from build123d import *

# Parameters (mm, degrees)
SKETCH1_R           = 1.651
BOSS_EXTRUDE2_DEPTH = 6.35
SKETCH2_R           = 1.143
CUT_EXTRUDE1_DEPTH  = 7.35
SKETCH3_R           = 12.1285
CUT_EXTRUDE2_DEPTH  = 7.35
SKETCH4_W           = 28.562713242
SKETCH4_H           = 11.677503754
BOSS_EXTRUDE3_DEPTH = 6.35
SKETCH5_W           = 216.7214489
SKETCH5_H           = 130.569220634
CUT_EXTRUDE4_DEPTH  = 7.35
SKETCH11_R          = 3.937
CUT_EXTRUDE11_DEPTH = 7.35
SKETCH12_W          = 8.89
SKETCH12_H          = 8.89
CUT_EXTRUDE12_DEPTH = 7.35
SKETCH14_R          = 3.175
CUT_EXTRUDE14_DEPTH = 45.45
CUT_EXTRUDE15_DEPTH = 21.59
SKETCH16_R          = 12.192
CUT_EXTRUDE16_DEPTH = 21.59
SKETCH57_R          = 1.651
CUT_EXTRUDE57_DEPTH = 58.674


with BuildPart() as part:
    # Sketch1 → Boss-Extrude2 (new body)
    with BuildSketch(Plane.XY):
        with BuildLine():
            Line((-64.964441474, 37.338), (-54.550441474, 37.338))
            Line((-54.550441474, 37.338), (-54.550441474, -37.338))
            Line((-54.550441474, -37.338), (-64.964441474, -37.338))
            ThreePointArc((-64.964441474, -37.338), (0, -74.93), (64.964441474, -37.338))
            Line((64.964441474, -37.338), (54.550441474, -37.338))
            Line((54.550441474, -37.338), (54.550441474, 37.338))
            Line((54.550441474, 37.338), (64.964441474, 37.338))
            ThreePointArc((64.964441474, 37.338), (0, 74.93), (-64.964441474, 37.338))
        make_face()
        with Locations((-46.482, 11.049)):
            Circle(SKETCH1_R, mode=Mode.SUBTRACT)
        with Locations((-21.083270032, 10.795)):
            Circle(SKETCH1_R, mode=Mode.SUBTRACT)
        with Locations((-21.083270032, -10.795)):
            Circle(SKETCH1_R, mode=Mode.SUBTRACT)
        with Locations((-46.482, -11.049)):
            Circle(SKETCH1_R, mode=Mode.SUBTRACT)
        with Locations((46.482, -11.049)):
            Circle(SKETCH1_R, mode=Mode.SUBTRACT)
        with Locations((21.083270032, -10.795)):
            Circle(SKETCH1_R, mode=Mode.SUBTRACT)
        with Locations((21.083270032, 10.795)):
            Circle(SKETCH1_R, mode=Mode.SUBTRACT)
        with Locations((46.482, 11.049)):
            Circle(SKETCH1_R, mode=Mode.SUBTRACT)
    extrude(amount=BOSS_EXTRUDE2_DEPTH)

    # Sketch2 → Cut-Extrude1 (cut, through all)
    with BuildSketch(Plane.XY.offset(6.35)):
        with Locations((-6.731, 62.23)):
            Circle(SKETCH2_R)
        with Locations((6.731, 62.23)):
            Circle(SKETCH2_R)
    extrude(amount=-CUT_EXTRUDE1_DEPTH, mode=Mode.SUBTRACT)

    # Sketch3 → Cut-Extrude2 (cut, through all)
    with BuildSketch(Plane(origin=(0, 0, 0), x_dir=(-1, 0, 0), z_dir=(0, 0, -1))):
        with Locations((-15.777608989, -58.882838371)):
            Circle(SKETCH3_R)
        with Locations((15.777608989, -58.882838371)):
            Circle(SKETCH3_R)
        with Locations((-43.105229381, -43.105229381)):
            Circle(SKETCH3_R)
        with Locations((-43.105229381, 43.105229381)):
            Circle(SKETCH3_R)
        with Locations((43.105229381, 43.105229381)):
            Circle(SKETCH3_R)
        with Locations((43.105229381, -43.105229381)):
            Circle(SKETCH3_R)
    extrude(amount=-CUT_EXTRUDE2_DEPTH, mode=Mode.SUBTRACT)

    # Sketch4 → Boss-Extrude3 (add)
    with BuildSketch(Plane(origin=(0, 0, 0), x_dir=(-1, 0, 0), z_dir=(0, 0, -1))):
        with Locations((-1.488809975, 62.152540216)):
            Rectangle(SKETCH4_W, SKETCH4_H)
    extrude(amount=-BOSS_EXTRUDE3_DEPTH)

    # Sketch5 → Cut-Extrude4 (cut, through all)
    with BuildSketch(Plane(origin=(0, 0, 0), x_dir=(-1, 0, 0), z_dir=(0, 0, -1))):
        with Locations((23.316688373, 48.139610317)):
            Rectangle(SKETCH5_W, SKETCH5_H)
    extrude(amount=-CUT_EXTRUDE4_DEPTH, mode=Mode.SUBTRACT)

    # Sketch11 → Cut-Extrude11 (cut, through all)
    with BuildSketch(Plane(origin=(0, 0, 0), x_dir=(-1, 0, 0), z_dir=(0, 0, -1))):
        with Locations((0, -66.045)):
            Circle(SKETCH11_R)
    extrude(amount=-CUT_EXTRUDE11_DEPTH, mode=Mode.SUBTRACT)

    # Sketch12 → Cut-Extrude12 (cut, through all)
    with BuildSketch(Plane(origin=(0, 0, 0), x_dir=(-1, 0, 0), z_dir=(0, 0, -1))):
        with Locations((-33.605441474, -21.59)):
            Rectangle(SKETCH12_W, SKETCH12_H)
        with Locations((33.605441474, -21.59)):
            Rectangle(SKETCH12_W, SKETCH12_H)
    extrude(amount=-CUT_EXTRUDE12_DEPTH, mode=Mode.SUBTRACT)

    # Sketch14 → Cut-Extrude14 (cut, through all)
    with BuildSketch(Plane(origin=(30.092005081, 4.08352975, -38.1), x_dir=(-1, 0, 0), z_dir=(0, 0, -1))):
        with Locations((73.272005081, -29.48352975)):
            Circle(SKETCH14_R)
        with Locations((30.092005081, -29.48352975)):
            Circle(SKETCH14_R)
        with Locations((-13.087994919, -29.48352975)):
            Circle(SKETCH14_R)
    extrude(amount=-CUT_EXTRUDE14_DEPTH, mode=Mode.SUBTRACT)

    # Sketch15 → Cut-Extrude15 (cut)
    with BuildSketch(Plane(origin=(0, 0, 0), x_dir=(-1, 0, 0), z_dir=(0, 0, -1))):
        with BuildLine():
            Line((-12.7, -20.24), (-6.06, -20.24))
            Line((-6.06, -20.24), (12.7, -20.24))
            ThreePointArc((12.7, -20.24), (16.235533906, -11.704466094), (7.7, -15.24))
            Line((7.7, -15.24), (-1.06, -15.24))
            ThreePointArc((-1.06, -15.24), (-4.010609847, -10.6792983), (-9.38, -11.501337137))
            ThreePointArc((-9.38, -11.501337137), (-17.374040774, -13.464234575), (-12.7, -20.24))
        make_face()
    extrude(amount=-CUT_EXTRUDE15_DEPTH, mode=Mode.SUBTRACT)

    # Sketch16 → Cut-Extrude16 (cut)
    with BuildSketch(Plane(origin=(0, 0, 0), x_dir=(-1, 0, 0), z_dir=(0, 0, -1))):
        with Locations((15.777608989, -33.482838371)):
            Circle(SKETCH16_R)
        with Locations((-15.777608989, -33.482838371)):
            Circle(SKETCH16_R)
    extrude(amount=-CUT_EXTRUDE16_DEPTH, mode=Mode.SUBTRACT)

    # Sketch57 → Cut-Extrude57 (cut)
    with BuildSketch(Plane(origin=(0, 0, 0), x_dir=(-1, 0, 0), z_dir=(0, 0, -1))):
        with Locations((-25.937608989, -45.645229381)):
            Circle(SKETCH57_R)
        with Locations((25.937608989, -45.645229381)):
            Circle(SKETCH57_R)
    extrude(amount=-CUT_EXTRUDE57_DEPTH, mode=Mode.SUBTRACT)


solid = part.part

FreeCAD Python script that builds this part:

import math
import FreeCAD as App
import Part
import Sketcher

V = App.Vector
Q = App.Units.Quantity


def add_polygon(sketch, points):
    """Adds a closed chain of lines whose ends are joined by coincident constraints."""
    first, n = sketch.GeometryCount, len(points)
    for a, b in zip(points, points[1:] + points[:1]):
        sketch.addGeometry(Part.LineSegment(App.Vector(*a, 0), App.Vector(*b, 0)), False)
    for i in range(n):
        sketch.addConstraint(Sketcher.Constraint("Coincident", first + i, 2, first + (i + 1) % n, 1))

doc = App.newDocument("Part")
params = doc.addObject("Spreadsheet::Sheet", "Params")
for row, (alias, value) in enumerate([
    ("sketch1_diameter", "0.13 in"),
    ("sketch1_radius", "2.95 in"),
    ("sketch1_width", "0.41 in"),
    ("sketch1_height", "2.94 in"),
    ("pad1_length", "0.25 in"),
    ("sketch2_diameter", "0.09 in"),
    ("sketch3_diameter", "0.955 in"),
    ("pad2_length", "0.25 in"),
    ("sketch6_diameter", "0.31 in"),
    ("sketch7_width", "0.35 in"),
    ("sketch8_diameter", "0.25 in"),
    ("sketch9_width", "1 in"),
    ("pocket7_length", "0.85 in"),
    ("sketch10_diameter", "0.96 in"),
    ("pocket8_length", "0.85 in"),
    ("sketch11_diameter", "0.13 in"),
    ("pocket9_length", "2.31 in"),
], start=1):
    params.set(f"A{row}", alias)
    params.set(f"B{row}", "=" + value)
    params.setAlias(f"B{row}", alias)

body = doc.addObject("PartDesign::Body", "Body")

sketch1 = body.newObject("Sketcher::SketchObject", "Sketch")
sketch1.AttachmentSupport = (doc.getObject("XY_Plane"), [""])
sketch1.MapMode = "FlatFace"
sketch1.addGeometry(Part.LineSegment(V(-64.964441, 37.338, 0), V(-54.550441, 37.338, 0)), False)
sketch1.addGeometry(Part.LineSegment(V(-54.550441, 37.338, 0), V(-54.550441, -37.338, 0)), False)
sketch1.addGeometry(Part.LineSegment(V(-54.550441, -37.338, 0), V(-64.964441, -37.338, 0)), False)
sketch1.addGeometry(Part.ArcOfCircle(Part.Circle(V(0, 0, 0), V(0, 0, 1), 74.93), math.radians(-150.112071), math.radians(-29.887929)), False)
sketch1.addGeometry(Part.LineSegment(V(64.964441, -37.338, 0), V(54.550441, -37.338, 0)), False)
sketch1.addGeometry(Part.LineSegment(V(54.550441, -37.338, 0), V(54.550441, 37.338, 0)), False)
sketch1.addGeometry(Part.LineSegment(V(54.550441, 37.338, 0), V(64.964441, 37.338, 0)), False)
sketch1.addGeometry(Part.ArcOfCircle(Part.Circle(V(0, 0, 0), V(0, 0, 1), 74.93), math.radians(29.887929), math.radians(150.112071)), False)
sketch1.addGeometry(Part.Circle(V(-46.482, -11.049, 0), V(0, 0, 1), 1.651), False)
sketch1.addGeometry(Part.Circle(V(-21.08327, -10.795, 0), V(0, 0, 1), 1.651), False)
sketch1.addGeometry(Part.Circle(V(21.08327, -10.795, 0), V(0, 0, 1), 1.651), False)
sketch1.addGeometry(Part.Circle(V(46.482, -11.049, 0), V(0, 0, 1), 1.651), False)
sketch1.addGeometry(Part.Circle(V(-46.482, 11.049, 0), V(0, 0, 1), 1.651), False)
sketch1.addGeometry(Part.Circle(V(-21.08327, 10.795, 0), V(0, 0, 1), 1.651), False)
sketch1.addGeometry(Part.Circle(V(21.08327, 10.795, 0), V(0, 0, 1), 1.651), False)
sketch1.addGeometry(Part.Circle(V(46.482, 11.049, 0), V(0, 0, 1), 1.651), False)
sketch1.addConstraint(Sketcher.Constraint("Coincident", 0, 2, 1, 1))
sketch1.addConstraint(Sketcher.Constraint("Coincident", 1, 2, 2, 1))
sketch1.addConstraint(Sketcher.Constraint("Coincident", 2, 2, 3, 1))
sketch1.addConstraint(Sketcher.Constraint("Coincident", 3, 2, 4, 1))
sketch1.addConstraint(Sketcher.Constraint("Coincident", 4, 2, 5, 1))
sketch1.addConstraint(Sketcher.Constraint("Coincident", 5, 2, 6, 1))
sketch1.addConstraint(Sketcher.Constraint("Coincident", 6, 2, 7, 1))
sketch1.addConstraint(Sketcher.Constraint("Coincident", 7, 2, 0, 1))
sketch1.addConstraint(Sketcher.Constraint("Horizontal", 0))
sketch1.addConstraint(Sketcher.Constraint("Vertical", 1))
sketch1.addConstraint(Sketcher.Constraint("Horizontal", 2))
sketch1.addConstraint(Sketcher.Constraint("Horizontal", 4))
sketch1.addConstraint(Sketcher.Constraint("Vertical", 5))
sketch1.addConstraint(Sketcher.Constraint("Horizontal", 6))
sketch1.addConstraint(Sketcher.Constraint("Coincident", 3, 3, -1, 1))
sketch1.addConstraint(Sketcher.Constraint("Coincident", 7, 3, -1, 1))
sketch1.addConstraint(Sketcher.Constraint("Equal", 3, 7))
sketch1.addConstraint(Sketcher.Constraint("Equal", 8, 9))
sketch1.addConstraint(Sketcher.Constraint("Equal", 9, 10))
sketch1.addConstraint(Sketcher.Constraint("Equal", 10, 11))
sketch1.addConstraint(Sketcher.Constraint("Equal", 11, 12))
sketch1.addConstraint(Sketcher.Constraint("Equal", 12, 13))
sketch1.addConstraint(Sketcher.Constraint("Equal", 13, 14))
sketch1.addConstraint(Sketcher.Constraint("Equal", 14, 15))
sketch1.addConstraint(Sketcher.Constraint("Symmetric", 11, 3, 12, 3, -1, 1))
sketch1.addConstraint(Sketcher.Constraint("Symmetric", 10, 3, 13, 3, -1, 1))
sketch1.addConstraint(Sketcher.Constraint("Symmetric", 9, 3, 14, 3, -1, 1))
sketch1.addConstraint(Sketcher.Constraint("Symmetric", 8, 3, 15, 3, -1, 1))
sketch1.addConstraint(Sketcher.Constraint("Symmetric", 0, 2, 4, 2, -1, 1))
sketch1.addConstraint(Sketcher.Constraint("Symmetric", 9, 3, 10, 3, -2))
sketch1.addConstraint(Sketcher.Constraint("Symmetric", 8, 3, 11, 3, -2))
sketch1.addConstraint(Sketcher.Constraint("Horizontal", 2, 2, 3, 2))
sketch1.addConstraint(Sketcher.Constraint("Horizontal", 0, 2, 5, 2))
sketch1.addConstraint(Sketcher.Constraint("Diameter", 8, Q("0.13 in")))
sketch1.addConstraint(Sketcher.Constraint("Radius", 3, Q("2.95 in")))
sketch1.addConstraint(Sketcher.Constraint("DistanceX", 0, 1, 0, 2, Q("0.41 in")))
sketch1.addConstraint(Sketcher.Constraint("DistanceY", 1, 2, 1, 1, Q("2.94 in")))
sketch1.addConstraint(Sketcher.Constraint("DistanceX", 8, 3, -1, 1, Q("1.83 in")))
sketch1.addConstraint(Sketcher.Constraint("DistanceY", 8, 3, 9, 3, Q("0.01 in")))
sketch1.addConstraint(Sketcher.Constraint("DistanceY", 8, 3, 12, 3, Q("0.87 in")))
sketch1.addConstraint(Sketcher.Constraint("DistanceX", 9, 3, 10, 3, Q("1.6601 in")))
sketch1.setExpression("Constraints[33]", "Params.sketch1_diameter")
sketch1.setExpression("Constraints[34]", "Params.sketch1_radius")
sketch1.setExpression("Constraints[35]", "Params.sketch1_width")
sketch1.setExpression("Constraints[36]", "Params.sketch1_height")
pad1 = body.newObject("PartDesign::Pad", "Pad")
pad1.Profile = sketch1
pad1.setExpression("Length", "Params.pad1_length")

sketch2 = body.newObject("Sketcher::SketchObject", "Sketch001")
sketch2.AttachmentSupport = (doc.getObject("XY_Plane"), [""])
sketch2.MapMode = "FlatFace"
sketch2.AttachmentOffset = App.Placement(V(0, 0, 0.25 * 25.4), App.Rotation())
sketch2.addGeometry(Part.Circle(V(-6.731, 62.23, 0), V(0, 0, 1), 1.143), False)
sketch2.addGeometry(Part.Circle(V(6.731, 62.23, 0), V(0, 0, 1), 1.143), False)
sketch2.addConstraint(Sketcher.Constraint("Equal", 0, 1))
sketch2.addConstraint(Sketcher.Constraint("Symmetric", 0, 3, 1, 3, -2))
sketch2.addConstraint(Sketcher.Constraint("Diameter", 0, Q("0.09 in")))
sketch2.addConstraint(Sketcher.Constraint("DistanceY", -1, 1, 0, 3, Q("2.45 in")))
sketch2.addConstraint(Sketcher.Constraint("DistanceX", 0, 3, 1, 3, Q("0.53 in")))
sketch2.setExpression("Constraints[2]", "Params.sketch2_diameter")
pocket1 = body.newObject("PartDesign::Pocket", "Pocket")
pocket1.Profile = sketch2
pocket1.Type = "ThroughAll"

sketch3 = body.newObject("Sketcher::SketchObject", "Sketch002")
sketch3.AttachmentSupport = (doc.getObject("XY_Plane"), [""])
sketch3.MapMode = "FlatFace"
sketch3.addGeometry(Part.Circle(V(15.777609, -58.882838, 0), V(0, 0, 1), 12.1285), False)
sketch3.addGeometry(Part.Circle(V(-15.777609, -58.882838, 0), V(0, 0, 1), 12.1285), False)
sketch3.addGeometry(Part.Circle(V(43.105229, -43.105229, 0), V(0, 0, 1), 12.1285), False)
sketch3.addGeometry(Part.Circle(V(43.105229, 43.105229, 0), V(0, 0, 1), 12.1285), False)
sketch3.addGeometry(Part.Circle(V(-43.105229, 43.105229, 0), V(0, 0, 1), 12.1285), False)
sketch3.addGeometry(Part.Circle(V(-43.105229, -43.105229, 0), V(0, 0, 1), 12.1285), False)
sketch3.addConstraint(Sketcher.Constraint("Equal", 0, 1))
sketch3.addConstraint(Sketcher.Constraint("Equal", 1, 2))
sketch3.addConstraint(Sketcher.Constraint("Equal", 2, 3))
sketch3.addConstraint(Sketcher.Constraint("Equal", 3, 4))
sketch3.addConstraint(Sketcher.Constraint("Equal", 4, 5))
sketch3.addConstraint(Sketcher.Constraint("Symmetric", 2, 3, 4, 3, -1, 1))
sketch3.addConstraint(Sketcher.Constraint("Symmetric", 3, 3, 5, 3, -1, 1))
sketch3.addConstraint(Sketcher.Constraint("Symmetric", 0, 3, 1, 3, -2))
sketch3.addConstraint(Sketcher.Constraint("Symmetric", 3, 3, 4, 3, -2))
sketch3.addConstraint(Sketcher.Constraint("Diameter", 0, Q("0.955 in")))
sketch3.addConstraint(Sketcher.Constraint("DistanceX", -1, 1, 0, 3, 15.777609))
sketch3.addConstraint(Sketcher.Constraint("DistanceY", 0, 3, -1, 1, 58.882838))
sketch3.addConstraint(Sketcher.Constraint("DistanceX", -1, 1, 2, 3, 43.105229))
sketch3.addConstraint(Sketcher.Constraint("DistanceY", 2, 3, -1, 1, 43.105229))
sketch3.setExpression("Constraints[9]", "Params.sketch3_diameter")
pocket2 = body.newObject("PartDesign::Pocket", "Pocket001")
pocket2.Profile = sketch3
pocket2.Type = "ThroughAll"
pocket2.Reversed = True

sketch4 = body.newObject("Sketcher::SketchObject", "Sketch003")
sketch4.AttachmentSupport = (doc.getObject("XY_Plane"), [""])
sketch4.MapMode = "FlatFace"
add_polygon(sketch4, [(15.770167, 67.991292), (15.770167, 56.313788), (-12.792547, 56.313788), (-12.792547, 67.991292)])
sketch4.addConstraint(Sketcher.Constraint("Vertical", 0))
sketch4.addConstraint(Sketcher.Constraint("Horizontal", 1))
sketch4.addConstraint(Sketcher.Constraint("Vertical", 2))
sketch4.addConstraint(Sketcher.Constraint("Horizontal", 3))
sketch4.addConstraint(Sketcher.Constraint("DistanceX", 1, 2, 1, 1, 28.562713))
sketch4.addConstraint(Sketcher.Constraint("DistanceY", 0, 2, 0, 1, 11.677504))
sketch4.addConstraint(Sketcher.Constraint("DistanceY", -1, 1, 0, 2, 56.313788))
sketch4.addConstraint(Sketcher.Constraint("DistanceX", -1, 1, 0, 2, 15.770167))
pad2 = body.newObject("PartDesign::Pad", "Pad001")
pad2.Profile = sketch4
pad2.setExpression("Length", "Params.pad2_length")

sketch5 = body.newObject("Sketcher::SketchObject", "Sketch004")
sketch5.AttachmentSupport = (doc.getObject("XY_Plane"), [""])
sketch5.MapMode = "FlatFace"
add_polygon(sketch5, [(85.044036, 113.424221), (85.044036, -17.145), (-131.677413, -17.145), (-131.677413, 113.424221)])
sketch5.addConstraint(Sketcher.Constraint("Vertical", 0))
sketch5.addConstraint(Sketcher.Constraint("Horizontal", 1))
sketch5.addConstraint(Sketcher.Constraint("Vertical", 2))
sketch5.addConstraint(Sketcher.Constraint("Horizontal", 3))
sketch5.addConstraint(Sketcher.Constraint("DistanceY", 0, 2, -1, 1, Q("0.675 in")))
sketch5.addConstraint(Sketcher.Constraint("DistanceX", 1, 2, 1, 1, 216.721449))
sketch5.addConstraint(Sketcher.Constraint("DistanceY", 0, 2, 0, 1, 130.569221))
sketch5.addConstraint(Sketcher.Constraint("DistanceX", -1, 1, 0, 2, 85.044036))
pocket3 = body.newObject("PartDesign::Pocket", "Pocket002")
pocket3.Profile = sketch5
pocket3.Type = "ThroughAll"
pocket3.Reversed = True

sketch6 = body.newObject("Sketcher::SketchObject", "Sketch005")
sketch6.AttachmentSupport = (doc.getObject("XY_Plane"), [""])
sketch6.MapMode = "FlatFace"
sketch6.addGeometry(Part.Circle(V(0, -66.045, 0), V(0, 0, 1), 3.937), False)
sketch6.addConstraint(Sketcher.Constraint("PointOnObject", 0, 3, -2))
sketch6.addConstraint(Sketcher.Constraint("Diameter", 0, Q("0.31 in")))
sketch6.addConstraint(Sketcher.Constraint("DistanceY", 0, 3, -1, 1, 66.045))
sketch6.setExpression("Constraints[1]", "Params.sketch6_diameter")
pocket4 = body.newObject("PartDesign::Pocket", "Pocket003")
pocket4.Profile = sketch6
pocket4.Type = "ThroughAll"
pocket4.Reversed = True

sketch7 = body.newObject("Sketcher::SketchObject", "Sketch006")
sketch7.AttachmentSupport = (doc.getObject("XY_Plane"), [""])
sketch7.MapMode = "FlatFace"
add_polygon(sketch7, [(38.050441, -17.145), (38.050441, -26.035), (29.160441, -26.035), (29.160441, -17.145)])
add_polygon(sketch7, [(-29.160441, -17.145), (-29.160441, -26.035), (-38.050441, -26.035), (-38.050441, -17.145)])
sketch7.addConstraint(Sketcher.Constraint("Vertical", 0))
sketch7.addConstraint(Sketcher.Constraint("Horizontal", 1))
sketch7.addConstraint(Sketcher.Constraint("Vertical", 2))
sketch7.addConstraint(Sketcher.Constraint("Horizontal", 3))
sketch7.addConstraint(Sketcher.Constraint("Vertical", 4))
sketch7.addConstraint(Sketcher.Constraint("Horizontal", 5))
sketch7.addConstraint(Sketcher.Constraint("Vertical", 6))
sketch7.addConstraint(Sketcher.Constraint("Horizontal", 7))
sketch7.addConstraint(Sketcher.Constraint("Symmetric", 1, 2, 4, 2, -2))
sketch7.addConstraint(Sketcher.Constraint("Symmetric", 3, 2, 6, 2, -2))
sketch7.addConstraint(Sketcher.Constraint("Equal", 7, 0))
sketch7.addConstraint(Sketcher.Constraint("DistanceX", 1, 2, 1, 1, Q("0.35 in")))
sketch7.addConstraint(Sketcher.Constraint("DistanceY", 0, 2, -1, 1, Q("1.025 in")))
sketch7.addConstraint(Sketcher.Constraint("DistanceX", -1, 1, 0, 2, 38.050441))
sketch7.setExpression("Constraints[19]", "Params.sketch7_width")
pocket5 = body.newObject("PartDesign::Pocket", "Pocket004")
pocket5.Profile = sketch7
pocket5.Type = "ThroughAll"
pocket5.Reversed = True

sketch8 = body.newObject("Sketcher::SketchObject", "Sketch007")
sketch8.AttachmentSupport = (doc.getObject("XY_Plane"), [""])
sketch8.MapMode = "FlatFace"
sketch8.AttachmentOffset = App.Placement(V(0, 0, -1.5 * 25.4), App.Rotation())
sketch8.addGeometry(Part.Circle(V(-43.18, -25.4, 0), V(0, 0, 1), 3.175), False)
sketch8.addGeometry(Part.Circle(V(0, -25.4, 0), V(0, 0, 1), 3.175), False)
sketch8.addGeometry(Part.Circle(V(43.18, -25.4, 0), V(0, 0, 1), 3.175), False)
sketch8.addConstraint(Sketcher.Constraint("Equal", 0, 1))
sketch8.addConstraint(Sketcher.Constraint("Equal", 1, 2))
sketch8.addConstraint(Sketcher.Constraint("Symmetric", 0, 3, 2, 3, -2))
sketch8.addConstraint(Sketcher.Constraint("PointOnObject", 1, 3, -2))
sketch8.addConstraint(Sketcher.Constraint("Horizontal", 0, 3, 1, 3))
sketch8.addConstraint(Sketcher.Constraint("Diameter", 0, Q("0.25 in")))
sketch8.addConstraint(Sketcher.Constraint("DistanceY", 0, 3, -1, 1, Q("1 in")))
sketch8.addConstraint(Sketcher.Constraint("DistanceX", 0, 3, -1, 1, Q("1.7 in")))
sketch8.setExpression("Constraints[5]", "Params.sketch8_diameter")
pocket6 = body.newObject("PartDesign::Pocket", "Pocket005")
pocket6.Profile = sketch8
pocket6.Type = "ThroughAll"
pocket6.Reversed = True

sketch9 = body.newObject("Sketcher::SketchObject", "Sketch008")
sketch9.AttachmentSupport = (doc.getObject("XY_Plane"), [""])
sketch9.MapMode = "FlatFace"
sketch9.addGeometry(Part.LineSegment(V(12.7, -20.24, 0), V(-12.7, -20.24, 0)), False)
sketch9.addGeometry(Part.ArcOfCircle(Part.Circle(V(-12.7, -15.24, 0), V(0, 0, 1), 5), math.radians(0), math.radians(270)), False)
sketch9.addGeometry(Part.LineSegment(V(-7.7, -15.24, 0), V(1.06, -15.24, 0)), False)
sketch9.addGeometry(Part.ArcOfCircle(Part.Circle(V(6.06, -15.24, 0), V(0, 0, 1), 5), math.radians(48.394346), math.radians(180)), False)
sketch9.addGeometry(Part.ArcOfCircle(Part.Circle(V(12.7, -15.24, 0), V(0, 0, 1), 5), math.radians(-90), math.radians(131.605654)), False)
sketch9.addConstraint(Sketcher.Constraint("Tangent", 0, 2, 1, 2))
sketch9.addConstraint(Sketcher.Constraint("Coincident", 1, 1, 2, 1))
sketch9.addConstraint(Sketcher.Constraint("Coincident", 2, 2, 3, 2))
sketch9.addConstraint(Sketcher.Constraint("Coincident", 3, 1, 4, 2))
sketch9.addConstraint(Sketcher.Constraint("Tangent", 4, 1, 0, 1))
sketch9.addConstraint(Sketcher.Constraint("Horizontal", 0))
sketch9.addConstraint(Sketcher.Constraint("Horizontal", 2))
sketch9.addConstraint(Sketcher.Constraint("Equal", 1, 3))
sketch9.addConstraint(Sketcher.Constraint("Equal", 3, 4))
sketch9.addConstraint(Sketcher.Constraint("Horizontal", 1, 3, 3, 3))
sketch9.addConstraint(Sketcher.Constraint("Horizontal", 4, 3, 1, 1))
sketch9.addConstraint(Sketcher.Constraint("DistanceX", 0, 2, 0, 1, Q("1 in")))
sketch9.addConstraint(Sketcher.Constraint("DistanceX", 1, 3, -1, 1, Q("0.5 in")))
sketch9.addConstraint(Sketcher.Constraint("DistanceY", 1, 3, -1, 1, Q("0.6 in")))
sketch9.addConstraint(Sketcher.Constraint("Radius", 1, 5.0))
sketch9.addConstraint(Sketcher.Constraint("DistanceX", 2, 1, 2, 2, 8.76))
sketch9.setExpression("Constraints[11]", "Params.sketch9_width")
pocket7 = body.newObject("PartDesign::Pocket", "Pocket006")
pocket7.Profile = sketch9
pocket7.setExpression("Length", "Params.pocket7_length")
pocket7.Reversed = True

sketch10 = body.newObject("Sketcher::SketchObject", "Sketch009")
sketch10.AttachmentSupport = (doc.getObject("XY_Plane"), [""])
sketch10.MapMode = "FlatFace"
sketch10.addGeometry(Part.Circle(V(-15.777609, -33.482838, 0), V(0, 0, 1), 12.192), False)
sketch10.addGeometry(Part.Circle(V(15.777609, -33.482838, 0), V(0, 0, 1), 12.192), False)
sketch10.addConstraint(Sketcher.Constraint("Equal", 0, 1))
sketch10.addConstraint(Sketcher.Constraint("Symmetric", 0, 3, 1, 3, -2))
sketch10.addConstraint(Sketcher.Constraint("Diameter", 0, Q("0.96 in")))
sketch10.addConstraint(Sketcher.Constraint("DistanceX", 0, 3, -1, 1, 15.777609))
sketch10.addConstraint(Sketcher.Constraint("DistanceY", 0, 3, -1, 1, 33.482838))
sketch10.setExpression("Constraints[2]", "Params.sketch10_diameter")
pocket8 = body.newObject("PartDesign::Pocket", "Pocket007")
pocket8.Profile = sketch10
pocket8.setExpression("Length", "Params.pocket8_length")
pocket8.Reversed = True

sketch11 = body.newObject("Sketcher::SketchObject", "Sketch010")
sketch11.AttachmentSupport = (doc.getObject("XY_Plane"), [""])
sketch11.MapMode = "FlatFace"
sketch11.addGeometry(Part.Circle(V(25.937609, -45.645229, 0), V(0, 0, 1), 1.651), False)
sketch11.addGeometry(Part.Circle(V(-25.937609, -45.645229, 0), V(0, 0, 1), 1.651), False)
sketch11.addConstraint(Sketcher.Constraint("Equal", 0, 1))
sketch11.addConstraint(Sketcher.Constraint("Symmetric", 0, 3, 1, 3, -2))
sketch11.addConstraint(Sketcher.Constraint("Diameter", 0, Q("0.13 in")))
sketch11.addConstraint(Sketcher.Constraint("DistanceX", -1, 1, 0, 3, 25.937609))
sketch11.addConstraint(Sketcher.Constraint("DistanceY", 0, 3, -1, 1, 45.645229))
sketch11.setExpression("Constraints[2]", "Params.sketch11_diameter")
pocket9 = body.newObject("PartDesign::Pocket", "Pocket008")
pocket9.Profile = sketch11
pocket9.setExpression("Length", "Params.pocket9_length")
pocket9.Reversed = True

doc.recompute()
